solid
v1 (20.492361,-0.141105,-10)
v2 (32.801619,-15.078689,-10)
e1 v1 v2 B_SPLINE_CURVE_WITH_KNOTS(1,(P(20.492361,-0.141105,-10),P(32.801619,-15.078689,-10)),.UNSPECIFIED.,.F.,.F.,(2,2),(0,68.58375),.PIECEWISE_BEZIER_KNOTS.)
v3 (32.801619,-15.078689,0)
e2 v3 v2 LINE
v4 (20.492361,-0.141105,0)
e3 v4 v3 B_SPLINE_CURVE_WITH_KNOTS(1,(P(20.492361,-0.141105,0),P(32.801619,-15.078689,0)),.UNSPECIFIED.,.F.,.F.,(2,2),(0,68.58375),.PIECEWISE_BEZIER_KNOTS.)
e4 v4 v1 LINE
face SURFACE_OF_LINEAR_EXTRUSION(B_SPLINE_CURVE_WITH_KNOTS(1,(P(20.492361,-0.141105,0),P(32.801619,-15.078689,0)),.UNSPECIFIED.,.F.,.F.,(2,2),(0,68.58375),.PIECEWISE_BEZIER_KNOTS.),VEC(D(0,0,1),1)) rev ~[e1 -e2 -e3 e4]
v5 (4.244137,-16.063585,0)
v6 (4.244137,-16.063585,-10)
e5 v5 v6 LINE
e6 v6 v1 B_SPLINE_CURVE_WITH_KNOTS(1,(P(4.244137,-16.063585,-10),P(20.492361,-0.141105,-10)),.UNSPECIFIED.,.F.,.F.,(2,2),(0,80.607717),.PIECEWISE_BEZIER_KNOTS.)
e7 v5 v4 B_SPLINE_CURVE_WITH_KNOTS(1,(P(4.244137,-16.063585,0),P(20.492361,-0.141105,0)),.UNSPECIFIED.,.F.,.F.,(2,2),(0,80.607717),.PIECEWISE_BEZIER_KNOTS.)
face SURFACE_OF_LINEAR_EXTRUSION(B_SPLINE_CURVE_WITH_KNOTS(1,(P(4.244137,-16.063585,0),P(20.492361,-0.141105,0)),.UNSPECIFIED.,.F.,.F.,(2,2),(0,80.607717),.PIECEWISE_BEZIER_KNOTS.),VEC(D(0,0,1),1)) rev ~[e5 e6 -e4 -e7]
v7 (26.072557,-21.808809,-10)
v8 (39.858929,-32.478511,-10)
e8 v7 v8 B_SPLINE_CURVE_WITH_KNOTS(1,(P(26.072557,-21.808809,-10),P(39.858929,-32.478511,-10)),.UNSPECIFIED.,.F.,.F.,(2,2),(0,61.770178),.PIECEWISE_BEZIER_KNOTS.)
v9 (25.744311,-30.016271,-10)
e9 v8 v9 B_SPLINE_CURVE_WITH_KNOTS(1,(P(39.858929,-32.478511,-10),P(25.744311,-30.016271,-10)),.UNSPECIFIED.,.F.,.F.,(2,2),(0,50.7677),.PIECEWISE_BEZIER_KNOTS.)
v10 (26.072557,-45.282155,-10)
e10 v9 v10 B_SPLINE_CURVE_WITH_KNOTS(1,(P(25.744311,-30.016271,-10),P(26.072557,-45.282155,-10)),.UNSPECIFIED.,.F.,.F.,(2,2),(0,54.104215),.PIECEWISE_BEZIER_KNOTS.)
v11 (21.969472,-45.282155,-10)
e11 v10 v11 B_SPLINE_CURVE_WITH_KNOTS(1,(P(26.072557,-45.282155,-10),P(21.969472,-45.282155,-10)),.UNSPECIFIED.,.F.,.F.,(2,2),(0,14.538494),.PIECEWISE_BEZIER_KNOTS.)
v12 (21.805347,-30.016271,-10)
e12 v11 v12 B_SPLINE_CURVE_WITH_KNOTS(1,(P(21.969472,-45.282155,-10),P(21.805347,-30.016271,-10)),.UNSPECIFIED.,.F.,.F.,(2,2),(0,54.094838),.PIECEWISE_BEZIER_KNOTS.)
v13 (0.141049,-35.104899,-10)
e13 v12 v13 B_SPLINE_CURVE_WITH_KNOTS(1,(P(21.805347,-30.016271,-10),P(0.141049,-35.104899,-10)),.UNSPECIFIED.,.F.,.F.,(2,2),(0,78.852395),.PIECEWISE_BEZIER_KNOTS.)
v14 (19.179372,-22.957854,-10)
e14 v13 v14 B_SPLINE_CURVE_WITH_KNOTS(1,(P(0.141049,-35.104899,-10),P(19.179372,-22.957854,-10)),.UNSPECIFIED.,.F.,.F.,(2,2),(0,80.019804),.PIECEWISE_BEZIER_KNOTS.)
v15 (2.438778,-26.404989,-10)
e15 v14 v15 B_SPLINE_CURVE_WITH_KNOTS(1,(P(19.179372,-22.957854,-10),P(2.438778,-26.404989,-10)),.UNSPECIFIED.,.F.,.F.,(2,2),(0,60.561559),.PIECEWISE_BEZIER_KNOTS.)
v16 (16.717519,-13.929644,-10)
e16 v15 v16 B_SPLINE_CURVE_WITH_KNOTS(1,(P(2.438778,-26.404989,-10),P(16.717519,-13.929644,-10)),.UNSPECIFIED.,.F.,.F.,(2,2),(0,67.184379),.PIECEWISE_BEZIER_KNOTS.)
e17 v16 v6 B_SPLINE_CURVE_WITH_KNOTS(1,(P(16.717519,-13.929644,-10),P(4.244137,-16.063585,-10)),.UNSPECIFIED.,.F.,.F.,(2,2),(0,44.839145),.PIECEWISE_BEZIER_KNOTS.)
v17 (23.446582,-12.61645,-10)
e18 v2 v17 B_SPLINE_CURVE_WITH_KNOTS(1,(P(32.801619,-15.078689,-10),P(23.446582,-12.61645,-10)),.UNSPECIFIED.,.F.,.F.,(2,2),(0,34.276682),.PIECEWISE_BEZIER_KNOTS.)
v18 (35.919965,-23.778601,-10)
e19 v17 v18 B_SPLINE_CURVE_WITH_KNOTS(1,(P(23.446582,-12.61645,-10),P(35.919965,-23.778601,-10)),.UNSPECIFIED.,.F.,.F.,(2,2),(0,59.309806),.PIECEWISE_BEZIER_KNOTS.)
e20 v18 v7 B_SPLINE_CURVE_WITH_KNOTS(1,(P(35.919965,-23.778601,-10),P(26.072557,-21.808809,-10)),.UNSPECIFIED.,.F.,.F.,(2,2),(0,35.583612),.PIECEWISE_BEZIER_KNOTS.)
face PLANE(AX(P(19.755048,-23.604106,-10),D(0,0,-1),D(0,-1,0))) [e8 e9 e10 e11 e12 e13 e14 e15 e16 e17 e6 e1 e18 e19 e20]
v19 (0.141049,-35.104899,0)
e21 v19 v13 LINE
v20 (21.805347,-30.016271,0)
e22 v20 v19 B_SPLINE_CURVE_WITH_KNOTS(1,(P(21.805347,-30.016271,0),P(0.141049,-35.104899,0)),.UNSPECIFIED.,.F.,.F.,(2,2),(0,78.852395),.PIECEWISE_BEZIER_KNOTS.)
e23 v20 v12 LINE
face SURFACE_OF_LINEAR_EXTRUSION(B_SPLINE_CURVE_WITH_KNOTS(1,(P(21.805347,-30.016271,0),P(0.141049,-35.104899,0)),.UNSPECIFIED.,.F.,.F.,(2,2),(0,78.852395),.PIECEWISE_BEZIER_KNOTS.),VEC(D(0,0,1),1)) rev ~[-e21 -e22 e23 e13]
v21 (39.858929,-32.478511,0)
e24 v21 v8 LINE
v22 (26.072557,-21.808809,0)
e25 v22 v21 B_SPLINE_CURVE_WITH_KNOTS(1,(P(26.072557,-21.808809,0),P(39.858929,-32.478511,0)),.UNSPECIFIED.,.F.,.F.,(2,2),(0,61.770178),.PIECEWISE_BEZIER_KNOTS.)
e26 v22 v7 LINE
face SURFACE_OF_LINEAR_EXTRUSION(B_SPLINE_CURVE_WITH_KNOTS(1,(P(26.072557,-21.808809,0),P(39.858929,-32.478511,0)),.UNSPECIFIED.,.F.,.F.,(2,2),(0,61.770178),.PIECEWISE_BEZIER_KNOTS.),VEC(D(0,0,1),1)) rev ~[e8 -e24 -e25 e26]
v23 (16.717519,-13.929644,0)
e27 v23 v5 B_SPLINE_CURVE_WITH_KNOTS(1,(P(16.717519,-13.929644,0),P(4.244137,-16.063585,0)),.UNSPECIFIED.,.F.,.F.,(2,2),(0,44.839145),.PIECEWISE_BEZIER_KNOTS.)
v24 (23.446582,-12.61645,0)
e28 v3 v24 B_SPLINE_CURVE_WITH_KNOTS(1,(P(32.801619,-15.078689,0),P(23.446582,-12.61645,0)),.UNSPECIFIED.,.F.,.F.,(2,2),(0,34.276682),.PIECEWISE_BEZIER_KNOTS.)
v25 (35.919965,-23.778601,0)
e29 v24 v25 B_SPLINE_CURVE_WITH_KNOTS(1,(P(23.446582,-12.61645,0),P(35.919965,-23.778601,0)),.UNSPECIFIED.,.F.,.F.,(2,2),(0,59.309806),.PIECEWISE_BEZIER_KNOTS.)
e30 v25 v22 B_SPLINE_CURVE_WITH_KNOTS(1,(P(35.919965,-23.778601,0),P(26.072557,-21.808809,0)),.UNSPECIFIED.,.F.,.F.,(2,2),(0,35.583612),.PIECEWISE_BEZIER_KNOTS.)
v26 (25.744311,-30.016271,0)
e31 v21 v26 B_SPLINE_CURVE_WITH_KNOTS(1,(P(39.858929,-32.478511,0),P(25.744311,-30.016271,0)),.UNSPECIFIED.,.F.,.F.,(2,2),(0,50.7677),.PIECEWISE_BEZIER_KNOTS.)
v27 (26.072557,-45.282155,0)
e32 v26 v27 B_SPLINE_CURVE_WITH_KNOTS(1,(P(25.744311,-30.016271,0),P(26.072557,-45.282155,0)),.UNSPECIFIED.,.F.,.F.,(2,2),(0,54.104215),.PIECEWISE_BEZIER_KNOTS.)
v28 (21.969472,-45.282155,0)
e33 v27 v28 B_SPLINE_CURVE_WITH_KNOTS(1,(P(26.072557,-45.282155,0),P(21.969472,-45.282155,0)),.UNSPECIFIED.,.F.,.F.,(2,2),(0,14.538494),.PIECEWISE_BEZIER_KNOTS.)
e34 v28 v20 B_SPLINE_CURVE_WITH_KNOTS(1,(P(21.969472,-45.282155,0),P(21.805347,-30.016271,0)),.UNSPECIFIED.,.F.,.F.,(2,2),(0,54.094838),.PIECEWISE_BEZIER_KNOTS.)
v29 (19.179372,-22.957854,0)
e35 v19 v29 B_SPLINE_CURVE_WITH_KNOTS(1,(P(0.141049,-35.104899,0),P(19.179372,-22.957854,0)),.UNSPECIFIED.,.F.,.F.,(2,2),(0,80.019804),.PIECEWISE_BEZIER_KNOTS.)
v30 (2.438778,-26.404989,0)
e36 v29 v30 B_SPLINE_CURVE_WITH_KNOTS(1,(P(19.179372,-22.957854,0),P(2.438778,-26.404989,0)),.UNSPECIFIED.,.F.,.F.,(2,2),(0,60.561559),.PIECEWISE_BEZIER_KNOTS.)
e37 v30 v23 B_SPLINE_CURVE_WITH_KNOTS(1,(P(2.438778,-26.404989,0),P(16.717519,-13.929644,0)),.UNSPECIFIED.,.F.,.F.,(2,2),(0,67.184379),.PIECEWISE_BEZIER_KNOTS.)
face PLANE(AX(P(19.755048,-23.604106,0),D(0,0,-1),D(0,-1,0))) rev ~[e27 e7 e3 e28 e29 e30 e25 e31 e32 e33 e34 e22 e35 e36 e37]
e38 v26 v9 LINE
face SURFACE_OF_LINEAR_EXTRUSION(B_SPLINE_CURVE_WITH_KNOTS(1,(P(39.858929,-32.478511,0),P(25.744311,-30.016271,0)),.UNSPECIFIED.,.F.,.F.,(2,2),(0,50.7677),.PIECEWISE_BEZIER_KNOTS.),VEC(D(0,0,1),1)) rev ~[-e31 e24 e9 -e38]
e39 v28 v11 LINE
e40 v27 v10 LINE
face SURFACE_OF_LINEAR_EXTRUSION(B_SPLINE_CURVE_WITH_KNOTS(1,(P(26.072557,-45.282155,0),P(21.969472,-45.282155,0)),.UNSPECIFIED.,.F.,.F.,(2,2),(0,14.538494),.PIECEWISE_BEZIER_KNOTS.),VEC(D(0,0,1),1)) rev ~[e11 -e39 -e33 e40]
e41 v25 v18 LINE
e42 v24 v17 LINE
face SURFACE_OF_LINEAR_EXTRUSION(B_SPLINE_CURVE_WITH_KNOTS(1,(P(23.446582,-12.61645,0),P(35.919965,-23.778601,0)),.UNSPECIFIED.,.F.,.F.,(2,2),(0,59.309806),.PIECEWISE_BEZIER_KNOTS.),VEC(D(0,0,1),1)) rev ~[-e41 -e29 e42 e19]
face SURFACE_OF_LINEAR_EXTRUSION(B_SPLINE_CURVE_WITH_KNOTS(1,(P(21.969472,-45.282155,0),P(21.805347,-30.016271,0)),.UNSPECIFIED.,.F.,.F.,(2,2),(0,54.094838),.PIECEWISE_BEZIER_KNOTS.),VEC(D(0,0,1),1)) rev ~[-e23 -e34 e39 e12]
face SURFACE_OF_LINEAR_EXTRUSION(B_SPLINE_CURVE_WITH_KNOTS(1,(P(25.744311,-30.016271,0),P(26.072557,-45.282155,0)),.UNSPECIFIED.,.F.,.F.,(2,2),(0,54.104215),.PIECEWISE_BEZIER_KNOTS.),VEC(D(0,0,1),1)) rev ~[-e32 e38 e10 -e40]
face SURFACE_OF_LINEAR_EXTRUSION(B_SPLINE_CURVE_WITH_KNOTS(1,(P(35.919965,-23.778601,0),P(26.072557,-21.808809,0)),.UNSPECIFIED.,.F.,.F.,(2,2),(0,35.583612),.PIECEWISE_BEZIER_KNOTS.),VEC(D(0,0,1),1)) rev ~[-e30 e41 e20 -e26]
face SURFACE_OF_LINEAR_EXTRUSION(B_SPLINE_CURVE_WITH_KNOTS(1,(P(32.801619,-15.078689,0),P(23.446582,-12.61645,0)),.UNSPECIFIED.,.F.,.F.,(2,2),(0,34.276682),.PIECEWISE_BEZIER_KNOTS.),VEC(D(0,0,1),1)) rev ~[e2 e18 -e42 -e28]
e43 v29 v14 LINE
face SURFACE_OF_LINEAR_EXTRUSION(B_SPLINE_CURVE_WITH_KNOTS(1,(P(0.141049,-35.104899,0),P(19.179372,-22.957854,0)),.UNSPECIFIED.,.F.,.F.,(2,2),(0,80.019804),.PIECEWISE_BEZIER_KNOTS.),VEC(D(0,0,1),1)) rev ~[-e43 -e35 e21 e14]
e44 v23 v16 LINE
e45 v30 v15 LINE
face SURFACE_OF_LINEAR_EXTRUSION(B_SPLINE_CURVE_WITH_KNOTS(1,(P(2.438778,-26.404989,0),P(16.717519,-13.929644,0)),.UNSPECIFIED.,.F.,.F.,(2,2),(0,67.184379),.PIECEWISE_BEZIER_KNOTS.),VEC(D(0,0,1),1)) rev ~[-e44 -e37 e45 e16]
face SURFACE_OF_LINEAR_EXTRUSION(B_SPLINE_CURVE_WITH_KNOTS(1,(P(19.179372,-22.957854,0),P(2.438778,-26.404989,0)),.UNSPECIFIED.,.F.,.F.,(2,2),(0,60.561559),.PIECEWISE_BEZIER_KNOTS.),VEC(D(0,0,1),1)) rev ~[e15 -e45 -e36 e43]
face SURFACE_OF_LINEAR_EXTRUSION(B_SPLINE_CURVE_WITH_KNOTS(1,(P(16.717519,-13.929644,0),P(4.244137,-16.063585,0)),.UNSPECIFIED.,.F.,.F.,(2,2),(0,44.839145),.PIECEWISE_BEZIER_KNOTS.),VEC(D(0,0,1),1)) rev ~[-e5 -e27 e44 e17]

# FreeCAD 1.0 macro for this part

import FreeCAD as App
import Part
import Sketcher

V = App.Vector

doc = App.newDocument("Part")
body = doc.addObject("PartDesign::Body", "Body")

# Sketch on XY plane
sketch1 = body.newObject("Sketcher::SketchObject", "Sketch")
sketch1.AttachmentSupport = (doc.getObject("XY_Plane"), [""])
sketch1.MapMode = "FlatFace"
sketch1.addGeometry([
    Part.BSplineCurve([V(21.969472, -45.282155, 0), V(21.805347, -30.016271, 0)], [2, 2], [0, 54.094838], False, 1, [1, 1], False),  # 0
    Part.BSplineCurve([V(21.805347, -30.016271, 0), V(0.141049, -35.104899, 0)], [2, 2], [0, 78.852395], False, 1, [1, 1], False),  # 1
    Part.BSplineCurve([V(0.141049, -35.104899, 0), V(19.179372, -22.957854, 0)], [2, 2], [0, 80.019804], False, 1, [1, 1], False),  # 2
    Part.BSplineCurve([V(19.179372, -22.957854, 0), V(2.438778, -26.404989, 0)], [2, 2], [0, 60.561559], False, 1, [1, 1], False),  # 3
    Part.BSplineCurve([V(2.438778, -26.404989, 0), V(16.717519, -13.929644, 0)], [2, 2], [0, 67.184379], False, 1, [1, 1], False),  # 4
    Part.BSplineCurve([V(16.717519, -13.929644, 0), V(4.244137, -16.063585, 0)], [2, 2], [0, 44.839145], False, 1, [1, 1], False),  # 5
    Part.BSplineCurve([V(4.244137, -16.063585, 0), V(20.492361, -0.141105, 0)], [2, 2], [0, 80.607717], False, 1, [1, 1], False),  # 6
    Part.BSplineCurve([V(20.492361, -0.141105, 0), V(32.801619, -15.078689, 0)], [2, 2], [0, 68.58375], False, 1, [1, 1], False),  # 7
    Part.BSplineCurve([V(32.801619, -15.078689, 0), V(23.446582, -12.61645, 0)], [2, 2], [0, 34.276682], False, 1, [1, 1], False),  # 8
    Part.BSplineCurve([V(23.446582, -12.61645, 0), V(35.919965, -23.778601, 0)], [2, 2], [0, 59.309806], False, 1, [1, 1], False),  # 9
    Part.BSplineCurve([V(35.919965, -23.778601, 0), V(26.072557, -21.808809, 0)], [2, 2], [0, 35.583612], False, 1, [1, 1], False),  # 10
    Part.BSplineCurve([V(26.072557, -21.808809, 0), V(39.858929, -32.478511, 0)], [2, 2], [0, 61.770178], False, 1, [1, 1], False),  # 11
    Part.BSplineCurve([V(39.858929, -32.478511, 0), V(25.744311, -30.016271, 0)], [2, 2], [0, 50.7677], False, 1, [1, 1], False),  # 12
    Part.BSplineCurve([V(25.744311, -30.016271, 0), V(26.072557, -45.282155, 0)], [2, 2], [0, 54.104215], False, 1, [1, 1], False),  # 13
    Part.BSplineCurve([V(26.072557, -45.282155, 0), V(21.969472, -45.282155, 0)], [2, 2], [0, 14.538494], False, 1, [1, 1], False),  # 14
], False)
sketch1.addConstraint([
    Sketcher.Constraint("Block", 0),
    Sketcher.Constraint("Block", 1),
    Sketcher.Constraint("Block", 2),
    Sketcher.Constraint("Block", 3),
    Sketcher.Constraint("Block", 4),
    Sketcher.Constraint("Block", 5),
    Sketcher.Constraint("Block", 6),
    Sketcher.Constraint("Block", 7),
    Sketcher.Constraint("Block", 8),
    Sketcher.Constraint("Block", 9),
    Sketcher.Constraint("Block", 10),
    Sketcher.Constraint("Block", 11),
    Sketcher.Constraint("Block", 12),
    Sketcher.Constraint("Block", 13),
    Sketcher.Constraint("Block", 14),
])
pad1 = body.newObject("PartDesign::Pad", "Pad")
pad1.Profile = sketch1
pad1.Length = 10
pad1.Reversed = True

doc.recompute()
